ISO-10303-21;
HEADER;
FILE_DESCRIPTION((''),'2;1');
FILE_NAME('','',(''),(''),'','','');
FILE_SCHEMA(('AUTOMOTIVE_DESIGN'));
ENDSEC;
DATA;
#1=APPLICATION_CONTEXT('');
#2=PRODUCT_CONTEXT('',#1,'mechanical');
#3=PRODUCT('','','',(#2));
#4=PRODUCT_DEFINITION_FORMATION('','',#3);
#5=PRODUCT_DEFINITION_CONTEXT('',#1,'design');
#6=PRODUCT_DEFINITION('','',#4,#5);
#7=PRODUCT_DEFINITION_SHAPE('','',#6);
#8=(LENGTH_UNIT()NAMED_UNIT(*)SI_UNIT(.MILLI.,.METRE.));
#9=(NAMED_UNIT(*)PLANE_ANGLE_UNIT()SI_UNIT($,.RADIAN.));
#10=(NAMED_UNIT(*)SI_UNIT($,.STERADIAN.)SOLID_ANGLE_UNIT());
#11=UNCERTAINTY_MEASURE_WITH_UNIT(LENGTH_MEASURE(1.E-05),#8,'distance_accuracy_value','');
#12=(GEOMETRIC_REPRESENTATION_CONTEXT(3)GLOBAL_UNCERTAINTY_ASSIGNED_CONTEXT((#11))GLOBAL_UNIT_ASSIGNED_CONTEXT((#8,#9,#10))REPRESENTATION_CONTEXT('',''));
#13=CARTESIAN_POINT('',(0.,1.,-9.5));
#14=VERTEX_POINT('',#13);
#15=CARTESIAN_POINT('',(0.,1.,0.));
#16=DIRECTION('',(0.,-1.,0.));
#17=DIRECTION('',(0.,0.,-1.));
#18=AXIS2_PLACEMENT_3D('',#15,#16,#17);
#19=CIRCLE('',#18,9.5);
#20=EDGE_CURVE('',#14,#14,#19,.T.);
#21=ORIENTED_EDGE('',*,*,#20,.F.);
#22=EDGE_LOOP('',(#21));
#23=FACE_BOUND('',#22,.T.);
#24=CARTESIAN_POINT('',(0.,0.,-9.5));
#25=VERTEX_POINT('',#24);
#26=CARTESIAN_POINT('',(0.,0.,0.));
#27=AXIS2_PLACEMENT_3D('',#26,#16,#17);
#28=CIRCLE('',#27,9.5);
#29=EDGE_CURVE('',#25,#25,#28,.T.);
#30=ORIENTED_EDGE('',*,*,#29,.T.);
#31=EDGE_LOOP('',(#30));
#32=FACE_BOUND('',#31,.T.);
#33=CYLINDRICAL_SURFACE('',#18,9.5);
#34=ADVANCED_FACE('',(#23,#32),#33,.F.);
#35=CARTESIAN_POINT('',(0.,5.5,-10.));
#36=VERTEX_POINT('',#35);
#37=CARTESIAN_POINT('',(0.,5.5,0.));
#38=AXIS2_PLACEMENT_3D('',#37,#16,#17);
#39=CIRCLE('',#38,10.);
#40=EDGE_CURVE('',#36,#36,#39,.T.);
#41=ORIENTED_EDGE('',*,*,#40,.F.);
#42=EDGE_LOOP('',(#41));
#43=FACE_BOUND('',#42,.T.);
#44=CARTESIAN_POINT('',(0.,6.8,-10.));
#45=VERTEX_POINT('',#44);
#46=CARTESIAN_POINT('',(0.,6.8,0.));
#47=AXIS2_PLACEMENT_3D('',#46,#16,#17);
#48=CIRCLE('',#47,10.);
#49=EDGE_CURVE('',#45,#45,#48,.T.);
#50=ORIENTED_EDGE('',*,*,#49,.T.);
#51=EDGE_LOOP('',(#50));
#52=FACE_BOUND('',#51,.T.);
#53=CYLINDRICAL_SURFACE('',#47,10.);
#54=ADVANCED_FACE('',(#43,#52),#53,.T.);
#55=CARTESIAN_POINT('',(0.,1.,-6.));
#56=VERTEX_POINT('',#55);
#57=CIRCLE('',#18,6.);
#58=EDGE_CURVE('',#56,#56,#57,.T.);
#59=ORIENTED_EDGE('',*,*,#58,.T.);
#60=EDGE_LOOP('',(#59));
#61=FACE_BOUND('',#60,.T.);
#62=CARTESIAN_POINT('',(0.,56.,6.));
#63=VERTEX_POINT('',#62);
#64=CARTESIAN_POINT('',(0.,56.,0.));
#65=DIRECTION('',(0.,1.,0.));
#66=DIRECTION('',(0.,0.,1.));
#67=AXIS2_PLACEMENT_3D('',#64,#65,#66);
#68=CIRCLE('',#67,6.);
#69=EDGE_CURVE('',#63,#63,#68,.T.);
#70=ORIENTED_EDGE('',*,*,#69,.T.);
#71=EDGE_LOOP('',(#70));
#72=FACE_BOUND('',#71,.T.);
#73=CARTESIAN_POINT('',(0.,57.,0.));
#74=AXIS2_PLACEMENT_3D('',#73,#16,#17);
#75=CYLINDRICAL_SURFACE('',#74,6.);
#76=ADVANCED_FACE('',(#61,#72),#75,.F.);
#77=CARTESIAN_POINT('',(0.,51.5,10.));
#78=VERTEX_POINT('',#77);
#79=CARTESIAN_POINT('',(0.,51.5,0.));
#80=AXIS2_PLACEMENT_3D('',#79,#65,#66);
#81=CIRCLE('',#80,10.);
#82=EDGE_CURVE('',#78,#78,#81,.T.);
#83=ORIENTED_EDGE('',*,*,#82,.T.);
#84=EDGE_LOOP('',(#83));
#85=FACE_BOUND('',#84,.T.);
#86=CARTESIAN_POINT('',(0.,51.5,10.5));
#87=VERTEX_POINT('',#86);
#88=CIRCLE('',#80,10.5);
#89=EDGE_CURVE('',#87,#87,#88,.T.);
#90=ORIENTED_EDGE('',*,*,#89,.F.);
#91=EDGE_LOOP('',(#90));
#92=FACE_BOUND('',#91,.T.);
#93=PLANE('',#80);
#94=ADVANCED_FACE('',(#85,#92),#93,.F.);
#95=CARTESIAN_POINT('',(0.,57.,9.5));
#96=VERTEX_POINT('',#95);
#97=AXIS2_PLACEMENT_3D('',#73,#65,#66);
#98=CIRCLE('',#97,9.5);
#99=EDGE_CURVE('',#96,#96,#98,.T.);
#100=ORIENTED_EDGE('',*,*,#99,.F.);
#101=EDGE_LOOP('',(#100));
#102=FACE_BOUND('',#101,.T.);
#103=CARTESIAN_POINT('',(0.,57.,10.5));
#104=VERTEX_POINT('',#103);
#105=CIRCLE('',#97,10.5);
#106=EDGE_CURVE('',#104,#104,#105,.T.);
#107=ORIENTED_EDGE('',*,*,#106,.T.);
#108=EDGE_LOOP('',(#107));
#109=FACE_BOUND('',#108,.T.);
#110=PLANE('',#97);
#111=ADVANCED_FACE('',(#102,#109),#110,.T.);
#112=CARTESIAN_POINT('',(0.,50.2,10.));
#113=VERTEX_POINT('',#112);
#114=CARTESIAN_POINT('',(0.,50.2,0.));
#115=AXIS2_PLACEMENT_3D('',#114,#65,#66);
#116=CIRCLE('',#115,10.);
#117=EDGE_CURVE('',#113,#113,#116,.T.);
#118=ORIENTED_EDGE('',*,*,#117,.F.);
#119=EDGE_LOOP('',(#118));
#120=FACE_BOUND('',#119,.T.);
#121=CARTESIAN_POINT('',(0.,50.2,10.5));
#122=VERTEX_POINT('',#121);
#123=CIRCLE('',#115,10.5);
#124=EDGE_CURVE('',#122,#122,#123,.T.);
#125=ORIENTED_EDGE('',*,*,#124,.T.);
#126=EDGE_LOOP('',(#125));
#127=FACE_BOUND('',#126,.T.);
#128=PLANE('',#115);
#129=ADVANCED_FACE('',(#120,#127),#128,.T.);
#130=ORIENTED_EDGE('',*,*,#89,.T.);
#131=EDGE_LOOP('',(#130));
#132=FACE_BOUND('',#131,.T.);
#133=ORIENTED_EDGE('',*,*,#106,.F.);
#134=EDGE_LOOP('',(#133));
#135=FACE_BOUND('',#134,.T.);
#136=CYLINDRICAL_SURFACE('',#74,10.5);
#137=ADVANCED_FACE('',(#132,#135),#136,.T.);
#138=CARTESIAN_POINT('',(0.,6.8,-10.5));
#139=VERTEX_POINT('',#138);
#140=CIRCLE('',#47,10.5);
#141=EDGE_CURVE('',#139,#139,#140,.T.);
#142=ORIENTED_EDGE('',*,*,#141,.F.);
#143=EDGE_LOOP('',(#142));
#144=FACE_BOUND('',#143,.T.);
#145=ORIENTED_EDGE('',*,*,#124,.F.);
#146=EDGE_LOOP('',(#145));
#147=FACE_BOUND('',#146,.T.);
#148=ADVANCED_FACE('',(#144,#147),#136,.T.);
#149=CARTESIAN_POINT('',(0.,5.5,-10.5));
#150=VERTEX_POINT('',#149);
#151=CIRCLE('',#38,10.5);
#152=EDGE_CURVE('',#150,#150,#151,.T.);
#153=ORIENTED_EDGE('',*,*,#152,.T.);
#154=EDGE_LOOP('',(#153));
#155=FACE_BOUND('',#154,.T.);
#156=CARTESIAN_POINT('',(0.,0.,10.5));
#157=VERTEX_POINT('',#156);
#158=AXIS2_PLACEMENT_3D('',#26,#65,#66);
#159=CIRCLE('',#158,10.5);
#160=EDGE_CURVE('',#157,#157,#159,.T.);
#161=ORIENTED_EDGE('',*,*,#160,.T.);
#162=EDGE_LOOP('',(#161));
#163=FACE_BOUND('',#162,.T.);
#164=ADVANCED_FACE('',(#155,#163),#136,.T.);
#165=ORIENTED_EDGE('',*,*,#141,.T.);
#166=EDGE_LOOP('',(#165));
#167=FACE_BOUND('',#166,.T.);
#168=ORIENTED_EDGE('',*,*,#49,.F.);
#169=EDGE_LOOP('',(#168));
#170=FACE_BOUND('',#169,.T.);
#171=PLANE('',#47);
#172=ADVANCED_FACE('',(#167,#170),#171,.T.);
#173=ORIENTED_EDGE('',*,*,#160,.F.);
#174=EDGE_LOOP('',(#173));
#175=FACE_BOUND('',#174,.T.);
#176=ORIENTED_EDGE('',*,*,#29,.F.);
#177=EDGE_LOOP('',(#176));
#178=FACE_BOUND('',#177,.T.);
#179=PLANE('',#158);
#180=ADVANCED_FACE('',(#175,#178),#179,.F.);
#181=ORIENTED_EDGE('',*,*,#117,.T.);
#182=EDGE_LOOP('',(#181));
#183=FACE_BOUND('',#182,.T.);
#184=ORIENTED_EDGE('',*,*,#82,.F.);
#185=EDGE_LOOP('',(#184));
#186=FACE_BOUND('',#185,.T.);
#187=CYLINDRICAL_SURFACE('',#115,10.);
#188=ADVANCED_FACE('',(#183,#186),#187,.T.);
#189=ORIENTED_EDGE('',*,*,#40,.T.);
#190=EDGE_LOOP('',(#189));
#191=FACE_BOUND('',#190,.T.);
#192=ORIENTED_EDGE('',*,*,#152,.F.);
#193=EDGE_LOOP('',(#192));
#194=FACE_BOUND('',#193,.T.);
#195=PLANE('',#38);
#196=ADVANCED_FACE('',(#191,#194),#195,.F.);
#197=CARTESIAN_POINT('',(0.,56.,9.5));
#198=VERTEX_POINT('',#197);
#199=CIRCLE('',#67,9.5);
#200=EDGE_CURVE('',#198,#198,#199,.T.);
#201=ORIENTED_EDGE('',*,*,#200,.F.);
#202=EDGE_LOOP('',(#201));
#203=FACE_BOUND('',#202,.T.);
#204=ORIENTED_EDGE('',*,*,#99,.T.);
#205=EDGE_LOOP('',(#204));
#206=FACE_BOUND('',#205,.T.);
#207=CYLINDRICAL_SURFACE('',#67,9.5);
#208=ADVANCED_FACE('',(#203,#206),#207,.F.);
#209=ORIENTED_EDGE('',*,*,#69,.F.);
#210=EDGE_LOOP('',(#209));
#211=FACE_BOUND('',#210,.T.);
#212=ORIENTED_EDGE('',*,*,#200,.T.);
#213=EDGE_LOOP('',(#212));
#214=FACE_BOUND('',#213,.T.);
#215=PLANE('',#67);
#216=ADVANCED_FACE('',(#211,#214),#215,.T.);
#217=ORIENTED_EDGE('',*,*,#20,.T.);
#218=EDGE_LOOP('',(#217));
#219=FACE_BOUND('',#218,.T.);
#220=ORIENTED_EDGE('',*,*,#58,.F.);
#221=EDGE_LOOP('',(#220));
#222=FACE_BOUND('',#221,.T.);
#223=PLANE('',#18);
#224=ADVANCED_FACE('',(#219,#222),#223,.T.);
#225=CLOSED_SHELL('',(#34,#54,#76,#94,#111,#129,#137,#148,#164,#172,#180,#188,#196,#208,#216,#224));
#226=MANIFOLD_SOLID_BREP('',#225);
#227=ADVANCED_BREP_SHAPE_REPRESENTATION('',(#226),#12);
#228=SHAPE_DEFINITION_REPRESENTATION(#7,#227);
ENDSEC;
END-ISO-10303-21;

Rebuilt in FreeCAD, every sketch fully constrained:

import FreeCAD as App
import Part
import Sketcher
from FreeCAD import Vector

doc = App.newDocument("Part")
params = doc.addObject("Spreadsheet::Sheet", "Params")
for row, (alias, value) in enumerate([
    ("sketch1_diameter", "21 mm"),
    ("sketch1_diameter2", "12 mm"),
    ("pad1_length", "57 mm"),
    ("sketch2_diameter", "19 mm"),
    ("pocket1_length", "1 mm"),
    ("sketch3_diameter", "19 mm"),
    ("pocket2_length", "1 mm"),
    ("sketch4_diameter", "20 mm"),
    ("pocket3_length", "1.3 mm"),
    ("sketch5_diameter", "20 mm"),
    ("pocket4_length", "1.3 mm"),
], start=1):
    params.set(f"A{row}", alias)
    params.set(f"B{row}", "=" + value)
    params.setAlias(f"B{row}", alias)

body = doc.addObject("PartDesign::Body", "Body")

sketch1 = body.newObject("Sketcher::SketchObject", "Sketch")
sketch1.AttachmentSupport = (doc.getObject("XZ_Plane"), [""])
sketch1.MapMode = "FlatFace"
sketch1.addGeometry([
    Part.Circle(Vector(0, 0, 0), Vector(0, 0, 1), 10.5),
    Part.Circle(Vector(0, 0, 0), Vector(0, 0, 1), 6),
], False)
sketch1.addConstraint([
    Sketcher.Constraint("Coincident", 0, 3, -1, 1),
    Sketcher.Constraint("Coincident", 1, 3, -1, 1),
    Sketcher.Constraint("Diameter", 0, 21.0),
    Sketcher.Constraint("Diameter", 1, 12.0),
])
sketch1.setExpression("Constraints[2]", "Params.sketch1_diameter")
sketch1.setExpression("Constraints[3]", "Params.sketch1_diameter2")
pad1 = body.newObject("PartDesign::Pad", "Pad")
pad1.Profile = sketch1
pad1.setExpression("Length", "Params.pad1_length")
pad1.Reversed = True

sketch2 = body.newObject("Sketcher::SketchObject", "Sketch001")
sketch2.AttachmentSupport = (doc.getObject("XZ_Plane"), [""])
sketch2.MapMode = "FlatFace"
sketch2.AttachmentOffset = App.Placement(Vector(0, 0, -57), App.Rotation())
sketch2.addGeometry(Part.Circle(Vector(0, 0, 0), Vector(0, 0, 1), 9.5), False)
sketch2.addConstraint([
    Sketcher.Constraint("Coincident", 0, 3, -1, 1),
    Sketcher.Constraint("Diameter", 0, 19.0),
])
sketch2.setExpression("Constraints[1]", "Params.sketch2_diameter")
pocket1 = body.newObject("PartDesign::Pocket", "Pocket")
pocket1.Profile = sketch2
pocket1.setExpression("Length", "Params.pocket1_length")
pocket1.Reversed = True

sketch3 = body.newObject("Sketcher::SketchObject", "Sketch002")
sketch3.AttachmentSupport = (doc.getObject("XZ_Plane"), [""])
sketch3.MapMode = "FlatFace"
sketch3.addGeometry(Part.Circle(Vector(0, 0, 0), Vector(0, 0, 1), 9.5), False)
sketch3.addConstraint([
    Sketcher.Constraint("Coincident", 0, 3, -1, 1),
    Sketcher.Constraint("Diameter", 0, 19.0),
])
sketch3.setExpression("Constraints[1]", "Params.sketch3_diameter")
pocket2 = body.newObject("PartDesign::Pocket", "Pocket001")
pocket2.Profile = sketch3
pocket2.setExpression("Length", "Params.pocket2_length")

sketch4 = body.newObject("Sketcher::SketchObject", "Sketch003")
sketch4.AttachmentSupport = (doc.getObject("XZ_Plane"), [""])
sketch4.MapMode = "FlatFace"
sketch4.AttachmentOffset = App.Placement(Vector(0, 0, -51.5), App.Rotation())
sketch4.addGeometry([
    Part.LineSegment(Vector(-17.927, -17.927, 0), Vector(-17.927, 17.927, 0)),
    Part.LineSegment(Vector(-17.927, 17.927, 0), Vector(17.927, 17.927, 0)),
    Part.LineSegment(Vector(17.927, 17.927, 0), Vector(17.927, -17.927, 0)),
    Part.LineSegment(Vector(17.927, -17.927, 0), Vector(-17.927, -17.927, 0)),
    Part.Circle(Vector(0, 0, 0), Vector(0, 0, 1), 10),
], False)
sketch4.addConstraint([
    Sketcher.Constraint("Coincident", 0, 2, 1, 1),
    Sketcher.Constraint("Coincident", 1, 2, 2, 1),
    Sketcher.Constraint("Coincident", 2, 2, 3, 1),
    Sketcher.Constraint("Coincident", 3, 2, 0, 1),
    Sketcher.Constraint("Vertical", 0),
    Sketcher.Constraint("Horizontal", 1),
    Sketcher.Constraint("Vertical", 2),
    Sketcher.Constraint("Horizontal", 3),
    Sketcher.Constraint("Coincident", 4, 3, -1, 1),
    Sketcher.Constraint("Symmetric", 0, 2, 2, 2, -1, 1),
    Sketcher.Constraint("Equal", 3, 0),
    Sketcher.Constraint("Diameter", 4, 20.0),
    Sketcher.Constraint("DistanceX", 1, 1, 1, 2, 35.854),
])
sketch4.setExpression("Constraints[11]", "Params.sketch4_diameter")
pocket3 = body.newObject("PartDesign::Pocket", "Pocket002")
pocket3.Profile = sketch4
pocket3.setExpression("Length", "Params.pocket3_length")
pocket3.Reversed = True

sketch5 = body.newObject("Sketcher::SketchObject", "Sketch004")
sketch5.AttachmentSupport = (doc.getObject("XZ_Plane"), [""])
sketch5.MapMode = "FlatFace"
sketch5.AttachmentOffset = App.Placement(Vector(0, 0, -5.5), App.Rotation())
sketch5.addGeometry([
    Part.LineSegment(Vector(17.927, -17.927, 0), Vector(17.927, 17.927, 0)),
    Part.LineSegment(Vector(17.927, 17.927, 0), Vector(-17.927, 17.927, 0)),
    Part.LineSegment(Vector(-17.927, 17.927, 0), Vector(-17.927, -17.927, 0)),
    Part.LineSegment(Vector(-17.927, -17.927, 0), Vector(17.927, -17.927, 0)),
    Part.Circle(Vector(0, 0, 0), Vector(0, 0, 1), 10),
], False)
sketch5.addConstraint([
    Sketcher.Constraint("Coincident", 0, 2, 1, 1),
    Sketcher.Constraint("Coincident", 1, 2, 2, 1),
    Sketcher.Constraint("Coincident", 2, 2, 3, 1),
    Sketcher.Constraint("Coincident", 3, 2, 0, 1),
    Sketcher.Constraint("Vertical", 0),
    Sketcher.Constraint("Horizontal", 1),
    Sketcher.Constraint("Vertical", 2),
    Sketcher.Constraint("Horizontal", 3),
    Sketcher.Constraint("Coincident", 4, 3, -1, 1),
    Sketcher.Constraint("Symmetric", 0, 2, 2, 2, -1, 1),
    Sketcher.Constraint("Equal", 3, 0),
    Sketcher.Constraint("Diameter", 4, 20.0),
    Sketcher.Constraint("DistanceX", 1, 2, 1, 1, 35.854),
])
sketch5.setExpression("Constraints[11]", "Params.sketch5_diameter")
pocket4 = body.newObject("PartDesign::Pocket", "Pocket003")
pocket4.Profile = sketch5
pocket4.setExpression("Length", "Params.pocket4_length")

doc.recompute()
